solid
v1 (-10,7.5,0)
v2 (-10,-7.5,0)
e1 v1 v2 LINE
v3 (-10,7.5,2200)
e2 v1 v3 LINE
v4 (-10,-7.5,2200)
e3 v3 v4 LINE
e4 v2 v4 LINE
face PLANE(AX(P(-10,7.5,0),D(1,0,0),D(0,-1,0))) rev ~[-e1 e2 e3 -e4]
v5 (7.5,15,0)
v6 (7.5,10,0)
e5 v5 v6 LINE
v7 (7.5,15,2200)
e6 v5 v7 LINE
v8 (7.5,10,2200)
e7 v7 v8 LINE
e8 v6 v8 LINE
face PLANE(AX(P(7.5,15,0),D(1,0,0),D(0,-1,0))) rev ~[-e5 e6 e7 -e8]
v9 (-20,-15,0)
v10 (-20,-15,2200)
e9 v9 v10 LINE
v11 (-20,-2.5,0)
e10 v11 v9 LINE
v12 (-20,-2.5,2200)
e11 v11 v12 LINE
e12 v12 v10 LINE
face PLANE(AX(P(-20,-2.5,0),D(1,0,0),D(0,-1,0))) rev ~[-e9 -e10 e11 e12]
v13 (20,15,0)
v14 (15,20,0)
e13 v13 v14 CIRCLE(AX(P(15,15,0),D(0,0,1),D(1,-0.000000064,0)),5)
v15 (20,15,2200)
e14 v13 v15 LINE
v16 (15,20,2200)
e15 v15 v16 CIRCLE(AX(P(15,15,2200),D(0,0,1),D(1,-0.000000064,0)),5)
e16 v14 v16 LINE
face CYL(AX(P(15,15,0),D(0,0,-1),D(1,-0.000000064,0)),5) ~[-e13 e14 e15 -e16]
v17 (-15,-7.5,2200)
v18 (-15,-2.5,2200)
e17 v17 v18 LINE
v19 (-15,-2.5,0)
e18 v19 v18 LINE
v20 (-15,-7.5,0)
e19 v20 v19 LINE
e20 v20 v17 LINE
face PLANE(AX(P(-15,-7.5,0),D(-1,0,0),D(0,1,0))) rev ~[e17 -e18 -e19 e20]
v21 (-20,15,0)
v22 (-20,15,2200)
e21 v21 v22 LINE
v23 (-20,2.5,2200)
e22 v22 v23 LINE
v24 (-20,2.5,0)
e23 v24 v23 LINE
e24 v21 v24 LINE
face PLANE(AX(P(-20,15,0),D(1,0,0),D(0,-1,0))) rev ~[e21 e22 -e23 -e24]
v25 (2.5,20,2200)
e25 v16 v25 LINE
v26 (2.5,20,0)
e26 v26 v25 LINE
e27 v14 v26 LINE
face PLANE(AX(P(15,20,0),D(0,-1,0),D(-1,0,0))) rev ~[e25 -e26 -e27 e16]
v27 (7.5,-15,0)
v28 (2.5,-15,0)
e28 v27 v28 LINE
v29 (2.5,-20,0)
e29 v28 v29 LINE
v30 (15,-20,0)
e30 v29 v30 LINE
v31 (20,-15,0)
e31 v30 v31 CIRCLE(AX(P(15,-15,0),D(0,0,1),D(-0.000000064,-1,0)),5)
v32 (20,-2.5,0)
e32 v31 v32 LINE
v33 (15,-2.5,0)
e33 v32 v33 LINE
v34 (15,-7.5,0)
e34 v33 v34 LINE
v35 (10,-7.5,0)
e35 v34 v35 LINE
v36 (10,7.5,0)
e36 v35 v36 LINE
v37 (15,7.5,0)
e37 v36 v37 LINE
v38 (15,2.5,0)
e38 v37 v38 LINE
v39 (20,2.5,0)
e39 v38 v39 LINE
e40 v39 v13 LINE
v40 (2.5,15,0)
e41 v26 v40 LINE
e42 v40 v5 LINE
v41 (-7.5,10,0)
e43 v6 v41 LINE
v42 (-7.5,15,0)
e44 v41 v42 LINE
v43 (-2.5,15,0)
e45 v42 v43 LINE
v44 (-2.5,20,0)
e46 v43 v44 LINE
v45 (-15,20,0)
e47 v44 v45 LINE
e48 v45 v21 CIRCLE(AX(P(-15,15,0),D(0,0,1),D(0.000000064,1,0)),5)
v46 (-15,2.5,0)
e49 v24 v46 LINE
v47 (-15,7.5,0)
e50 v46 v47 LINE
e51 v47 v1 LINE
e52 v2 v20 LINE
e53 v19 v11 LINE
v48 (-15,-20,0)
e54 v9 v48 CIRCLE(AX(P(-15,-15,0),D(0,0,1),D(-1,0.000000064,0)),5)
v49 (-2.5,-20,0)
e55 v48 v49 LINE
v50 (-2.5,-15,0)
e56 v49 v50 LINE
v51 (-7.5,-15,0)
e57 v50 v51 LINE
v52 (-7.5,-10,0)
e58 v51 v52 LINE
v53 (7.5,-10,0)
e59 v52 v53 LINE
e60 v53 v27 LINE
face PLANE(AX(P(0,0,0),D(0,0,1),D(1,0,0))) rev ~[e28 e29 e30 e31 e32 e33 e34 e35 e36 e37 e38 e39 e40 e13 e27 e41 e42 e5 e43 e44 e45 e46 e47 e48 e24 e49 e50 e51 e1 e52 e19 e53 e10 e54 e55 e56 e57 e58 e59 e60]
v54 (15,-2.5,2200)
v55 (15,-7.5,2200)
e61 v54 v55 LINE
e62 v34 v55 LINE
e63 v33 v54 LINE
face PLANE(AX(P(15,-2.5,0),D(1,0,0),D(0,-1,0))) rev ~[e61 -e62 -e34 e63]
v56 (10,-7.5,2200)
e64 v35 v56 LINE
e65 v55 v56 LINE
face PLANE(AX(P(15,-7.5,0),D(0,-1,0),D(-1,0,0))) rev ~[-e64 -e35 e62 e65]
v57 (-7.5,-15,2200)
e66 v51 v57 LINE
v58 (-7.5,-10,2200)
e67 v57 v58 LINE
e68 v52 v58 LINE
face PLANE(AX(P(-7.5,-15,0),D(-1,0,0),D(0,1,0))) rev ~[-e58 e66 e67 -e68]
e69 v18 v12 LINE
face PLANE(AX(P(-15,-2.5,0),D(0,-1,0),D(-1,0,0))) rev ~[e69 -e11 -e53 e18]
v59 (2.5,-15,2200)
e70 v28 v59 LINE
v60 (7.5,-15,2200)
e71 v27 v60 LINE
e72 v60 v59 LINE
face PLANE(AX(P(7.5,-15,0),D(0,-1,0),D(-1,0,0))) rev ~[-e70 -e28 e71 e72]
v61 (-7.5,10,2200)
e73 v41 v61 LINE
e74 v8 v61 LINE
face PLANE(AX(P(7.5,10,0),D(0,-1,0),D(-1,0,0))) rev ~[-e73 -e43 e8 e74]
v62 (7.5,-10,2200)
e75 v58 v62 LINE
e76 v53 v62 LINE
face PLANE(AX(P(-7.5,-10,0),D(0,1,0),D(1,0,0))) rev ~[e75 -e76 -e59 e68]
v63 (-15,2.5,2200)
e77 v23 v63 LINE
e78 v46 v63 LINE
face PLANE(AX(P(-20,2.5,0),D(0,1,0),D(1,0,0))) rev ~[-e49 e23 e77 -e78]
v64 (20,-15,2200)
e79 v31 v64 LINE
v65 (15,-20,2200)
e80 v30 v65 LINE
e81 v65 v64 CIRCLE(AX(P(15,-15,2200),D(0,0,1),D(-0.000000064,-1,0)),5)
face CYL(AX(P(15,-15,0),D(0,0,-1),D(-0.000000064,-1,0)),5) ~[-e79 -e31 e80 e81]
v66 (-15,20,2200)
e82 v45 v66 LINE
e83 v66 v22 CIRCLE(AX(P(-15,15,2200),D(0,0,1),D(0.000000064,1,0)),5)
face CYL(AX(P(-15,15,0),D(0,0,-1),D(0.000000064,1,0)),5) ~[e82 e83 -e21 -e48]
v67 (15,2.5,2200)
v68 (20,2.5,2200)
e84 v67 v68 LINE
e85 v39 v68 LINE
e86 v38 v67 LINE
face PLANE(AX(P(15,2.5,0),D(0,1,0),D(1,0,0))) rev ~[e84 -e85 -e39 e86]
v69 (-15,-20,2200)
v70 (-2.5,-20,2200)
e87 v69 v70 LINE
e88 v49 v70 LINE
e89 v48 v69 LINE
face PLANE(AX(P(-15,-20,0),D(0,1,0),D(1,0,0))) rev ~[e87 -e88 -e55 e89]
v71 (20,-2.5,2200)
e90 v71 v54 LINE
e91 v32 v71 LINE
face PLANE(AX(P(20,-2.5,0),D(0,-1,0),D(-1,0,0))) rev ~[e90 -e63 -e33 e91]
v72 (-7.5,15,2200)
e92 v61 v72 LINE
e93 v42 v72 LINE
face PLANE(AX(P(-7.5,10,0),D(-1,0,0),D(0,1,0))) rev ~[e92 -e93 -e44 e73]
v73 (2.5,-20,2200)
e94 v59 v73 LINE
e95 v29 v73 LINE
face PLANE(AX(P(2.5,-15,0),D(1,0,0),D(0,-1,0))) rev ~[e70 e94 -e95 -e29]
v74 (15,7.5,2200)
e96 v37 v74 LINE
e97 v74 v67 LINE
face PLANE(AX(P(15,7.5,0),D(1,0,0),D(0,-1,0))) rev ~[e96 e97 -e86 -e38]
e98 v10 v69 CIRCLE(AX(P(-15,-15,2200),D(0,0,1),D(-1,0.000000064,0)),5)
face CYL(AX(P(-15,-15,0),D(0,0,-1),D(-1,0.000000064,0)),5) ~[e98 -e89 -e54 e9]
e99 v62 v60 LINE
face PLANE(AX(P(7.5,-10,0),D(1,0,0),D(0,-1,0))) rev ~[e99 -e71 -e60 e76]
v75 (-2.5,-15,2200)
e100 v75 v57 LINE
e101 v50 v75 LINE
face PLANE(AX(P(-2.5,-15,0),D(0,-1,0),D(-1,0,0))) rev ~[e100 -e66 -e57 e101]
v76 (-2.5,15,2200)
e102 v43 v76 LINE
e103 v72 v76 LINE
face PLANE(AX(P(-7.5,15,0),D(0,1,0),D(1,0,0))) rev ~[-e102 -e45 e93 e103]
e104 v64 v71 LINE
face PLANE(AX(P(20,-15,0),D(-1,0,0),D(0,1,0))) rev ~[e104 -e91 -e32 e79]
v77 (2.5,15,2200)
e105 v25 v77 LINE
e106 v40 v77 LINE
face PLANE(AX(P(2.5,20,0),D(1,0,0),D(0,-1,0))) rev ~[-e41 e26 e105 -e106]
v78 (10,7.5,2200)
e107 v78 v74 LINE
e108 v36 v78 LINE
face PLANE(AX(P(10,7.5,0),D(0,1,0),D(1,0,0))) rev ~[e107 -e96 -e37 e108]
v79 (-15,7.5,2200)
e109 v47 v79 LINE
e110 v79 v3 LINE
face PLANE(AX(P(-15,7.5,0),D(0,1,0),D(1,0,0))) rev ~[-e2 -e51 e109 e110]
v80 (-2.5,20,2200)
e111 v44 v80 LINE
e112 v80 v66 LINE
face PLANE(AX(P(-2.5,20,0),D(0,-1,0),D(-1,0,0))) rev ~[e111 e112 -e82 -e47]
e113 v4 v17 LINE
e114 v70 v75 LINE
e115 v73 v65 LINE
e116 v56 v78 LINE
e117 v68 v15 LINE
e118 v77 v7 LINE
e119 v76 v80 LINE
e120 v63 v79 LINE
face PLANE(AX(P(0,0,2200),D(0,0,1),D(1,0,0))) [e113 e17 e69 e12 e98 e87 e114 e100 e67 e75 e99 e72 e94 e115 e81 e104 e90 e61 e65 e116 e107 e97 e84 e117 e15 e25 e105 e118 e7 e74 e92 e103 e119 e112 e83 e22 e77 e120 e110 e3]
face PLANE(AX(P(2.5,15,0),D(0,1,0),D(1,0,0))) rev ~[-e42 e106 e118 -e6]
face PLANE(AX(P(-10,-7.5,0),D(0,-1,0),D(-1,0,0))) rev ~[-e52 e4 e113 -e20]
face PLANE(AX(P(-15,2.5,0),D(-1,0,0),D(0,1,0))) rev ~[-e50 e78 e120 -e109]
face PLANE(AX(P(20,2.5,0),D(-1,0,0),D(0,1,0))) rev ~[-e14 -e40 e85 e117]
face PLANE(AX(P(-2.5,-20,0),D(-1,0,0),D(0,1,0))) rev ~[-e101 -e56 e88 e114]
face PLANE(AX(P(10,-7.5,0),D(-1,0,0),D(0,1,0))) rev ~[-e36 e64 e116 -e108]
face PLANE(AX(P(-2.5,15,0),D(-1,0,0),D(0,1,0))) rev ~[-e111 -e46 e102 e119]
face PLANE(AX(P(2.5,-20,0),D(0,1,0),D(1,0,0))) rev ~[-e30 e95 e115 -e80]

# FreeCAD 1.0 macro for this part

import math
import FreeCAD as App
import Part
import Sketcher

doc = App.newDocument("Part")
body = doc.addObject("PartDesign::Body", "Body")

sketch1 = body.newObject("Sketcher::SketchObject", "Sketch")
sketch1.AttachmentSupport = (doc.getObject("XY_Plane"), [""])
sketch1.MapMode = "FlatFace"
sketch1.addGeometry(Part.LineSegment(App.Vector(-2.5, 20, 0), App.Vector(-15, 20, 0)), False)
sketch1.addGeometry(Part.ArcOfCircle(Part.Circle(App.Vector(-15, 15, 0), App.Vector(0, 0, 1), 5), math.radians(89.999996), math.radians(180.000004)), False)
sketch1.addGeometry(Part.LineSegment(App.Vector(-20, 15, 0), App.Vector(-20, 2.5, 0)), False)
sketch1.addGeometry(Part.LineSegment(App.Vector(-20, 2.5, 0), App.Vector(-15, 2.5, 0)), False)
sketch1.addGeometry(Part.LineSegment(App.Vector(-15, 2.5, 0), App.Vector(-15, 7.5, 0)), False)
sketch1.addGeometry(Part.LineSegment(App.Vector(-15, 7.5, 0), App.Vector(-10, 7.5, 0)), False)
sketch1.addGeometry(Part.LineSegment(App.Vector(-10, 7.5, 0), App.Vector(-10, -7.5, 0)), False)
sketch1.addGeometry(Part.LineSegment(App.Vector(-10, -7.5, 0), App.Vector(-15, -7.5, 0)), False)
sketch1.addGeometry(Part.LineSegment(App.Vector(-15, -7.5, 0), App.Vector(-15, -2.5, 0)), False)
sketch1.addGeometry(Part.LineSegment(App.Vector(-15, -2.5, 0), App.Vector(-20, -2.5, 0)), False)
sketch1.addGeometry(Part.LineSegment(App.Vector(-20, -2.5, 0), App.Vector(-20, -15, 0)), False)
sketch1.addGeometry(Part.ArcOfCircle(Part.Circle(App.Vector(-15, -15, 0), App.Vector(0, 0, 1), 5), math.radians(179.999996), math.radians(270.000004)), False)
sketch1.addGeometry(Part.LineSegment(App.Vector(-15, -20, 0), App.Vector(-2.5, -20, 0)), False)
sketch1.addGeometry(Part.LineSegment(App.Vector(-2.5, -20, 0), App.Vector(-2.5, -15, 0)), False)
sketch1.addGeometry(Part.LineSegment(App.Vector(-2.5, -15, 0), App.Vector(-7.5, -15, 0)), False)
sketch1.addGeometry(Part.LineSegment(App.Vector(-7.5, -15, 0), App.Vector(-7.5, -10, 0)), False)
sketch1.addGeometry(Part.LineSegment(App.Vector(-7.5, -10, 0), App.Vector(7.5, -10, 0)), False)
sketch1.addGeometry(Part.LineSegment(App.Vector(7.5, -10, 0), App.Vector(7.5, -15, 0)), False)
sketch1.addGeometry(Part.LineSegment(App.Vector(7.5, -15, 0), App.Vector(2.5, -15, 0)), False)
sketch1.addGeometry(Part.LineSegment(App.Vector(2.5, -15, 0), App.Vector(2.5, -20, 0)), False)
sketch1.addGeometry(Part.LineSegment(App.Vector(2.5, -20, 0), App.Vector(15, -20, 0)), False)
sketch1.addGeometry(Part.ArcOfCircle(Part.Circle(App.Vector(15, -15, 0), App.Vector(0, 0, 1), 5), math.radians(-90.000004), math.radians(0.000004)), False)
sketch1.addGeometry(Part.LineSegment(App.Vector(20, -15, 0), App.Vector(20, -2.5, 0)), False)
sketch1.addGeometry(Part.LineSegment(App.Vector(20, -2.5, 0), App.Vector(15, -2.5, 0)), False)
sketch1.addGeometry(Part.LineSegment(App.Vector(15, -2.5, 0), App.Vector(15, -7.5, 0)), False)
sketch1.addGeometry(Part.LineSegment(App.Vector(15, -7.5, 0), App.Vector(10, -7.5, 0)), False)
sketch1.addGeometry(Part.LineSegment(App.Vector(10, -7.5, 0), App.Vector(10, 7.5, 0)), False)
sketch1.addGeometry(Part.LineSegment(App.Vector(10, 7.5, 0), App.Vector(15, 7.5, 0)), False)
sketch1.addGeometry(Part.LineSegment(App.Vector(15, 7.5, 0), App.Vector(15, 2.5, 0)), False)
sketch1.addGeometry(Part.LineSegment(App.Vector(15, 2.5, 0), App.Vector(20, 2.5, 0)), False)
sketch1.addGeometry(Part.LineSegment(App.Vector(20, 2.5, 0), App.Vector(20, 15, 0)), False)
sketch1.addGeometry(Part.ArcOfCircle(Part.Circle(App.Vector(15, 15, 0), App.Vector(0, 0, 1), 5), math.radians(-0.000004), math.radians(90.000004)), False)
sketch1.addGeometry(Part.LineSegment(App.Vector(15, 20, 0), App.Vector(2.5, 20, 0)), False)
sketch1.addGeometry(Part.LineSegment(App.Vector(2.5, 20, 0), App.Vector(2.5, 15, 0)), False)
sketch1.addGeometry(Part.LineSegment(App.Vector(2.5, 15, 0), App.Vector(7.5, 15, 0)), False)
sketch1.addGeometry(Part.LineSegment(App.Vector(7.5, 15, 0), App.Vector(7.5, 10, 0)), False)
sketch1.addGeometry(Part.LineSegment(App.Vector(7.5, 10, 0), App.Vector(-7.5, 10, 0)), False)
sketch1.addGeometry(Part.LineSegment(App.Vector(-7.5, 10, 0), App.Vector(-7.5, 15, 0)), False)
sketch1.addGeometry(Part.LineSegment(App.Vector(-7.5, 15, 0), App.Vector(-2.5, 15, 0)), False)
sketch1.addGeometry(Part.LineSegment(App.Vector(-2.5, 15, 0), App.Vector(-2.5, 20, 0)), False)
sketch1.addConstraint(Sketcher.Constraint("Tangent", 0, 2, 1, 1))
sketch1.addConstraint(Sketcher.Constraint("Tangent", 1, 2, 2, 1))
sketch1.addConstraint(Sketcher.Constraint("Coincident", 2, 2, 3, 1))
sketch1.addConstraint(Sketcher.Constraint("Coincident", 3, 2, 4, 1))
sketch1.addConstraint(Sketcher.Constraint("Coincident", 4, 2, 5, 1))
sketch1.addConstraint(Sketcher.Constraint("Coincident", 5, 2, 6, 1))
sketch1.addConstraint(Sketcher.Constraint("Coincident", 6, 2, 7, 1))
sketch1.addConstraint(Sketcher.Constraint("Coincident", 7, 2, 8, 1))
sketch1.addConstraint(Sketcher.Constraint("Coincident", 8, 2, 9, 1))
sketch1.addConstraint(Sketcher.Constraint("Coincident", 9, 2, 10, 1))
sketch1.addConstraint(Sketcher.Constraint("Tangent", 10, 2, 11, 1))
sketch1.addConstraint(Sketcher.Constraint("Tangent", 11, 2, 12, 1))
sketch1.addConstraint(Sketcher.Constraint("Coincident", 12, 2, 13, 1))
sketch1.addConstraint(Sketcher.Constraint("Coincident", 13, 2, 14, 1))
sketch1.addConstraint(Sketcher.Constraint("Coincident", 14, 2, 15, 1))
sketch1.addConstraint(Sketcher.Constraint("Coincident", 15, 2, 16, 1))
sketch1.addConstraint(Sketcher.Constraint("Coincident", 16, 2, 17, 1))
sketch1.addConstraint(Sketcher.Constraint("Coincident", 17, 2, 18, 1))
sketch1.addConstraint(Sketcher.Constraint("Coincident", 18, 2, 19, 1))
sketch1.addConstraint(Sketcher.Constraint("Coincident", 19, 2, 20, 1))
sketch1.addConstraint(Sketcher.Constraint("Tangent", 20, 2, 21, 1))
sketch1.addConstraint(Sketcher.Constraint("Tangent", 21, 2, 22, 1))
sketch1.addConstraint(Sketcher.Constraint("Coincident", 22, 2, 23, 1))
sketch1.addConstraint(Sketcher.Constraint("Coincident", 23, 2, 24, 1))
sketch1.addConstraint(Sketcher.Constraint("Coincident", 24, 2, 25, 1))
sketch1.addConstraint(Sketcher.Constraint("Coincident", 25, 2, 26, 1))
sketch1.addConstraint(Sketcher.Constraint("Coincident", 26, 2, 27, 1))
sketch1.addConstraint(Sketcher.Constraint("Coincident", 27, 2, 28, 1))
sketch1.addConstraint(Sketcher.Constraint("Coincident", 28, 2, 29, 1))
sketch1.addConstraint(Sketcher.Constraint("Coincident", 29, 2, 30, 1))
sketch1.addConstraint(Sketcher.Constraint("Tangent", 30, 2, 31, 1))
sketch1.addConstraint(Sketcher.Constraint("Tangent", 31, 2, 32, 1))
sketch1.addConstraint(Sketcher.Constraint("Coincident", 32, 2, 33, 1))
sketch1.addConstraint(Sketcher.Constraint("Coincident", 33, 2, 34, 1))
sketch1.addConstraint(Sketcher.Constraint("Coincident", 34, 2, 35, 1))
sketch1.addConstraint(Sketcher.Constraint("Coincident", 35, 2, 36, 1))
sketch1.addConstraint(Sketcher.Constraint("Coincident", 36, 2, 37, 1))
sketch1.addConstraint(Sketcher.Constraint("Coincident", 37, 2, 38, 1))
sketch1.addConstraint(Sketcher.Constraint("Coincident", 38, 2, 39, 1))
sketch1.addConstraint(Sketcher.Constraint("Coincident", 39, 2, 0, 1))
sketch1.addConstraint(Sketcher.Constraint("Horizontal", 0))
sketch1.addConstraint(Sketcher.Constraint("Vertical", 2))
sketch1.addConstraint(Sketcher.Constraint("Horizontal", 3))
sketch1.addConstraint(Sketcher.Constraint("Vertical", 4))
sketch1.addConstraint(Sketcher.Constraint("Horizontal", 5))
sketch1.addConstraint(Sketcher.Constraint("Vertical", 6))
sketch1.addConstraint(Sketcher.Constraint("Horizontal", 7))
sketch1.addConstraint(Sketcher.Constraint("Vertical", 8))
sketch1.addConstraint(Sketcher.Constraint("Horizontal", 9))
sketch1.addConstraint(Sketcher.Constraint("Vertical", 10))
sketch1.addConstraint(Sketcher.Constraint("Horizontal", 12))
sketch1.addConstraint(Sketcher.Constraint("Vertical", 13))
sketch1.addConstraint(Sketcher.Constraint("Horizontal", 14))
sketch1.addConstraint(Sketcher.Constraint("Vertical", 15))
sketch1.addConstraint(Sketcher.Constraint("Horizontal", 16))
sketch1.addConstraint(Sketcher.Constraint("Vertical", 17))
sketch1.addConstraint(Sketcher.Constraint("Horizontal", 18))
sketch1.addConstraint(Sketcher.Constraint("Vertical", 19))
sketch1.addConstraint(Sketcher.Constraint("Horizontal", 20))
sketch1.addConstraint(Sketcher.Constraint("Vertical", 22))
sketch1.addConstraint(Sketcher.Constraint("Horizontal", 23))
sketch1.addConstraint(Sketcher.Constraint("Vertical", 24))
sketch1.addConstraint(Sketcher.Constraint("Horizontal", 25))
sketch1.addConstraint(Sketcher.Constraint("Vertical", 26))
sketch1.addConstraint(Sketcher.Constraint("Horizontal", 27))
sketch1.addConstraint(Sketcher.Constraint("Vertical", 28))
sketch1.addConstraint(Sketcher.Constraint("Horizontal", 29))
sketch1.addConstraint(Sketcher.Constraint("Vertical", 30))
sketch1.addConstraint(Sketcher.Constraint("Horizontal", 32))
sketch1.addConstraint(Sketcher.Constraint("Vertical", 33))
sketch1.addConstraint(Sketcher.Constraint("Horizontal", 34))
sketch1.addConstraint(Sketcher.Constraint("Vertical", 35))
sketch1.addConstraint(Sketcher.Constraint("Horizontal", 36))
sketch1.addConstraint(Sketcher.Constraint("Vertical", 37))
sketch1.addConstraint(Sketcher.Constraint("Horizontal", 38))
sketch1.addConstraint(Sketcher.Constraint("Vertical", 39))
sketch1.addConstraint(Sketcher.Constraint("Equal", 1, 11))
sketch1.addConstraint(Sketcher.Constraint("Equal", 11, 21))
sketch1.addConstraint(Sketcher.Constraint("Equal", 21, 31))
sketch1.addConstraint(Sketcher.Constraint("Symmetric", 1, 3, 21, 3, -1, 1))
sketch1.addConstraint(Sketcher.Constraint("Symmetric", 11, 3, 31, 3, -1, 1))
sketch1.addConstraint(Sketcher.Constraint("Symmetric", 3, 2, 23, 2, -1, 1))
sketch1.addConstraint(Sketcher.Constraint("Symmetric", 5, 2, 25, 2, -1, 1))
sketch1.addConstraint(Sketcher.Constraint("Symmetric", 7, 2, 27, 2, -1, 1))
sketch1.addConstraint(Sketcher.Constraint("Symmetric", 13, 2, 33, 2, -1, 1))
sketch1.addConstraint(Sketcher.Constraint("Symmetric", 15, 2, 35, 2, -1, 1))
sketch1.addConstraint(Sketcher.Constraint("Symmetric", 17, 2, 37, 2, -1, 1))
sketch1.addConstraint(Sketcher.Constraint("Symmetric", 11, 3, 21, 3, -2))
sketch1.addConstraint(Sketcher.Constraint("Symmetric", 14, 2, 17, 2, -2))
sketch1.addConstraint(Sketcher.Constraint("Symmetric", 8, 2, 23, 2, -2))
sketch1.addConstraint(Sketcher.Constraint("Horizontal", 10, 2, 13, 2))
sketch1.addConstraint(Sketcher.Constraint("Horizontal", 7, 2, 24, 2))
sketch1.addConstraint(Sketcher.Constraint("Horizontal", 3, 2, 28, 2))
sketch1.addConstraint(Sketcher.Constraint("Vertical", 0, 2, 3, 2))
sketch1.addConstraint(Sketcher.Constraint("Vertical", 19, 2, 32, 2))
sketch1.addConstraint(Sketcher.Constraint("Vertical", 13, 2, 38, 2))
sketch1.addConstraint(Sketcher.Constraint("Equal", 3, 5))
sketch1.addConstraint(Sketcher.Constraint("Equal", 9, 14))
sketch1.addConstraint(Sketcher.Constraint("Equal", 32, 2))
sketch1.addConstraint(Sketcher.Constraint("Equal", 38, 4))
sketch1.addConstraint(Sketcher.Constraint("Equal", 36, 6))
sketch1.addConstraint(Sketcher.Constraint("Equal", 13, 15))
sketch1.addConstraint(Sketcher.Constraint("Radius", 1, 5.0))
sketch1.addConstraint(Sketcher.Constraint("DistanceX", 16, 1, 16, 2, 15.0))
sketch1.addConstraint(Sketcher.Constraint("DistanceX", 0, 2, 0, 1, 12.5))
pad1 = body.newObject("PartDesign::Pad", "Pad")
pad1.Profile = sketch1
pad1.Length = 2200

doc.recompute()
